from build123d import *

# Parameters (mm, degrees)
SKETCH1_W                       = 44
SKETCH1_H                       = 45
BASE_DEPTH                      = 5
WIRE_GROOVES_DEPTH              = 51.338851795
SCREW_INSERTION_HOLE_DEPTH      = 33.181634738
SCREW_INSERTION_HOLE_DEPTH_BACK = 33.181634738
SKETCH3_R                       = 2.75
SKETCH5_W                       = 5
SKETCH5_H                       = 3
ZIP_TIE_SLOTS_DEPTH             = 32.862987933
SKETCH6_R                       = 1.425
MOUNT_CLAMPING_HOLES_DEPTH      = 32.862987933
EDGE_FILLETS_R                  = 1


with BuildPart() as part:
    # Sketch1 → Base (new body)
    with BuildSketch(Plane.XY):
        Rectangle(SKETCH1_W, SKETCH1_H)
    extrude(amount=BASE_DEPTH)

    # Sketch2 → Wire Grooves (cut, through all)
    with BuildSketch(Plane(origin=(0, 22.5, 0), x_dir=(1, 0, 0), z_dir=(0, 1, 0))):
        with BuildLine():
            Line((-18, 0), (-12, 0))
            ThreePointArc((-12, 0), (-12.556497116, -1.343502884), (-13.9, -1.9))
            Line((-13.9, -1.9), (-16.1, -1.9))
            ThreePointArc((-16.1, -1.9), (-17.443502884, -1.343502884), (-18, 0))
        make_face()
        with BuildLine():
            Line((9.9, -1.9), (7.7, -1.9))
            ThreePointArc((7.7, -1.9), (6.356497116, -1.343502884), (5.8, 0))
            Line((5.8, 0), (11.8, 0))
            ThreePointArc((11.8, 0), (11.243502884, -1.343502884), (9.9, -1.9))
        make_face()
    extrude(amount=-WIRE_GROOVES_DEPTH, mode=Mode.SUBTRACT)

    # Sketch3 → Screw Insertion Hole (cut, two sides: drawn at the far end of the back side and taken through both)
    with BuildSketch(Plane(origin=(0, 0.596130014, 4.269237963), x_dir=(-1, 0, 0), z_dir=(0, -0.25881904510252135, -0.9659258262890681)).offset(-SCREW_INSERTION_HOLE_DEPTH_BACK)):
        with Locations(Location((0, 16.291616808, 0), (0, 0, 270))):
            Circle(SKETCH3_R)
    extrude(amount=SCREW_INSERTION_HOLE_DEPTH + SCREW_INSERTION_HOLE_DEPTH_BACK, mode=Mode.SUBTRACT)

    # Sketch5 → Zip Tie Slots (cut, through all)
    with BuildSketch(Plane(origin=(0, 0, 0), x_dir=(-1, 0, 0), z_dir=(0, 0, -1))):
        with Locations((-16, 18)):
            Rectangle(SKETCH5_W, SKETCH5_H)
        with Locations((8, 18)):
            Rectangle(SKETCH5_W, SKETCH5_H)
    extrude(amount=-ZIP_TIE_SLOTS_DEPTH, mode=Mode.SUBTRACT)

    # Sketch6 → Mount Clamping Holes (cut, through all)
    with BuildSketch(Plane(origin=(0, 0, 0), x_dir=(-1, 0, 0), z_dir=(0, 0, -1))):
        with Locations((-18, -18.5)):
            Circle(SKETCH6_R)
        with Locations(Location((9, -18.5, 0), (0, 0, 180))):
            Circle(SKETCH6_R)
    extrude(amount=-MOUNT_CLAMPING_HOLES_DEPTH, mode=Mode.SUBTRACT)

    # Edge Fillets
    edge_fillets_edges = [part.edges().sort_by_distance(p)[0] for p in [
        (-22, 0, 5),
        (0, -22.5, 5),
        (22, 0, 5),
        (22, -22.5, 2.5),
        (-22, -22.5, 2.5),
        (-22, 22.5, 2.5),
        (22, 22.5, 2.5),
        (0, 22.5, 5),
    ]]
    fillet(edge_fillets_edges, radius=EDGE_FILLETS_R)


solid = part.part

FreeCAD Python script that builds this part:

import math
import FreeCAD as App
import Part
import Sketcher
Q = App.Units.Quantity


def edges_at(feature, points):
    """Names of the edges that pass closest to the given points."""
    edges = feature.Shape.Edges
    near = lambda p: min(range(len(edges)), key=lambda i: edges[i].distToShape(Part.Vertex(*p))[0])
    return sorted({f"Edge{near(p) + 1}" for p in points})

doc = App.newDocument("Part")
params = doc.addObject("Spreadsheet::Sheet", "Params")
for row, (alias, value) in enumerate([
    ("sketch1_width", "44 mm"),
    ("sketch1_height", "45 mm"),
    ("pad1_length", "5 mm"),
    ("sketch2_radius", "1.9 mm"),
    ("sketch2_width", "6 mm"),
    ("sketch3_diameter", "5.5 mm"),
    ("sketch4_width", "5 mm"),
    ("sketch4_height", "3 mm"),
    ("sketch5_diameter", "2.85 mm"),
    ("fillet_radius", "1 mm"),
], start=1):
    params.set(f"A{row}", alias)
    params.set(f"B{row}", "=" + value)
    params.setAlias(f"B{row}", alias)

body = doc.addObject("PartDesign::Body", "Body")

# Sketch on XY plane
sketch1 = body.newObject("Sketcher::SketchObject", "Sketch")
sketch1.AttachmentSupport = (doc.getObject("XY_Plane"), [""])
sketch1.MapMode = "FlatFace"
sketch1.addGeometry(Part.LineSegment(App.Vector(-22, 22.5, 0), App.Vector(-22, -22.5, 0)), False)
sketch1.addGeometry(Part.LineSegment(App.Vector(-22, -22.5, 0), App.Vector(22, -22.5, 0)), False)
sketch1.addGeometry(Part.LineSegment(App.Vector(22, -22.5, 0), App.Vector(22, 22.5, 0)), False)
sketch1.addGeometry(Part.LineSegment(App.Vector(22, 22.5, 0), App.Vector(-22, 22.5, 0)), False)
sketch1.addConstraint(Sketcher.Constraint("Coincident", 0, 2, 1, 1))
sketch1.addConstraint(Sketcher.Constraint("Coincident", 1, 2, 2, 1))
sketch1.addConstraint(Sketcher.Constraint("Coincident", 2, 2, 3, 1))
sketch1.addConstraint(Sketcher.Constraint("Coincident", 3, 2, 0, 1))
sketch1.addConstraint(Sketcher.Constraint("Vertical", 0))
sketch1.addConstraint(Sketcher.Constraint("Horizontal", 1))
sketch1.addConstraint(Sketcher.Constraint("Vertical", 2))
sketch1.addConstraint(Sketcher.Constraint("Horizontal", 3))
sketch1.addConstraint(Sketcher.Constraint("Symmetric", 0, 2, 2, 2, -1, 1))
sketch1.addConstraint(Sketcher.Constraint("DistanceX", 1, 1, 1, 2, Q("44 mm")))
sketch1.addConstraint(Sketcher.Constraint("DistanceY", 0, 2, 0, 1, Q("45 mm")))
sketch1.setExpression("Constraints[9]", "Params.sketch1_width")
sketch1.setExpression("Constraints[10]", "Params.sketch1_height")
pad1 = body.newObject("PartDesign::Pad", "Pad")
pad1.Profile = sketch1
pad1.setExpression("Length", "Params.pad1_length")

# Sketch on XZ plane
sketch2 = body.newObject("Sketcher::SketchObject", "Sketch001")
sketch2.AttachmentSupport = (doc.getObject("XZ_Plane"), [""])
sketch2.MapMode = "FlatFace"
sketch2.AttachmentOffset = App.Placement(App.Vector(0, 0, -22.5), App.Rotation())
sketch2.addGeometry(Part.LineSegment(App.Vector(-12, 0, 0), App.Vector(-18, 0, 0)), False)
sketch2.addGeometry(Part.ArcOfCircle(Part.Circle(App.Vector(-16.1, 0, 0), App.Vector(0, 0, 1), 1.9), math.radians(90), math.radians(180)), False)
sketch2.addGeometry(Part.LineSegment(App.Vector(-16.1, 1.9, 0), App.Vector(-13.9, 1.9, 0)), False)
sketch2.addGeometry(Part.ArcOfCircle(Part.Circle(App.Vector(-13.9, 0, 0), App.Vector(0, 0, 1), 1.9), math.radians(0), math.radians(90)), False)
sketch2.addGeometry(Part.LineSegment(App.Vector(7.7, 1.9, 0), App.Vector(9.9, 1.9, 0)), False)
sketch2.addGeometry(Part.ArcOfCircle(Part.Circle(App.Vector(9.9, 0, 0), App.Vector(0, 0, 1), 1.9), math.radians(0), math.radians(90)), False)
sketch2.addGeometry(Part.LineSegment(App.Vector(11.8, 0, 0), App.Vector(5.8, 0, 0)), False)
sketch2.addGeometry(Part.ArcOfCircle(Part.Circle(App.Vector(7.7, 0, 0), App.Vector(0, 0, 1), 1.9), math.radians(90), math.radians(180)), False)
sketch2.addConstraint(Sketcher.Constraint("Coincident", 0, 2, 1, 2))
sketch2.addConstraint(Sketcher.Constraint("Tangent", 1, 1, 2, 1))
sketch2.addConstraint(Sketcher.Constraint("Tangent", 2, 2, 3, 2))
sketch2.addConstraint(Sketcher.Constraint("Coincident", 3, 1, 0, 1))
sketch2.addConstraint(Sketcher.Constraint("Tangent", 4, 2, 5, 2))
sketch2.addConstraint(Sketcher.Constraint("Coincident", 5, 1, 6, 1))
sketch2.addConstraint(Sketcher.Constraint("Coincident", 6, 2, 7, 2))
sketch2.addConstraint(Sketcher.Constraint("Tangent", 7, 1, 4, 1))
sketch2.addConstraint(Sketcher.Constraint("Horizontal", 0))
sketch2.addConstraint(Sketcher.Constraint("Horizontal", 2))
sketch2.addConstraint(Sketcher.Constraint("Horizontal", 4))
sketch2.addConstraint(Sketcher.Constraint("Horizontal", 6))
sketch2.addConstraint(Sketcher.Constraint("Equal", 1, 3))
sketch2.addConstraint(Sketcher.Constraint("Equal", 3, 5))
sketch2.addConstraint(Sketcher.Constraint("Equal", 5, 7))
sketch2.addConstraint(Sketcher.Constraint("PointOnObject", 1, 3, -1))
sketch2.addConstraint(Sketcher.Constraint("PointOnObject", 5, 3, -1))
sketch2.addConstraint(Sketcher.Constraint("PointOnObject", 0, 2, -1))
sketch2.addConstraint(Sketcher.Constraint("PointOnObject", 5, 1, -1))
sketch2.addConstraint(Sketcher.Constraint("Equal", 2, 4))
sketch2.addConstraint(Sketcher.Constraint("Radius", 1, Q("1.9 mm")))
sketch2.addConstraint(Sketcher.Constraint("DistanceX", 0, 2, 0, 1, Q("6 mm")))
sketch2.addConstraint(Sketcher.Constraint("DistanceX", 0, 2, -1, 1, Q("18 mm")))
sketch2.addConstraint(Sketcher.Constraint("DistanceX", 1, 3, 5, 3, Q("26 mm")))
sketch2.setExpression("Constraints[20]", "Params.sketch2_radius")
sketch2.setExpression("Constraints[21]", "Params.sketch2_width")
pocket1 = body.newObject("PartDesign::Pocket", "Pocket")
pocket1.Profile = sketch2
pocket1.Type = "ThroughAll"
pocket1.Reversed = True

# Sketch on an angled plane
sketch3 = body.newObject("Sketcher::SketchObject", "Sketch002")
sketch3.Placement = App.Placement(App.Vector(0, 0.59613, 4.269238), App.Rotation(App.Vector(-1, 0, 0), App.Vector(0, 0.965925826, -0.258819045), App.Vector(0, -0.258819045, -0.965925826), "ZXY"))
sketch3.addGeometry(Part.Circle(App.Vector(0, 16.291617, 0), App.Vector(0, 0, 1), 2.75), False)
sketch3.addConstraint(Sketcher.Constraint("PointOnObject", 0, 3, -2))
sketch3.addConstraint(Sketcher.Constraint("Diameter", 0, Q("5.5 mm")))
sketch3.addConstraint(Sketcher.Constraint("DistanceY", -1, 1, 0, 3, Q("16.291617 mm")))
sketch3.setExpression("Constraints[1]", "Params.sketch3_diameter")
pocket2 = body.newObject("PartDesign::Pocket", "Pocket001")
pocket2.Profile = sketch3
pocket2.Type = "ThroughAll"
pocket2.Midplane = True

# Sketch on XY plane
sketch4 = body.newObject("Sketcher::SketchObject", "Sketch003")
sketch4.AttachmentSupport = (doc.getObject("XY_Plane"), [""])
sketch4.MapMode = "FlatFace"
sketch4.addGeometry(Part.LineSegment(App.Vector(18.5, 19.5, 0), App.Vector(18.5, 16.5, 0)), False)
sketch4.addGeometry(Part.LineSegment(App.Vector(18.5, 16.5, 0), App.Vector(13.5, 16.5, 0)), False)
sketch4.addGeometry(Part.LineSegment(App.Vector(13.5, 16.5, 0), App.Vector(13.5, 19.5, 0)), False)
sketch4.addGeometry(Part.LineSegment(App.Vector(13.5, 19.5, 0), App.Vector(18.5, 19.5, 0)), False)
sketch4.addGeometry(Part.LineSegment(App.Vector(-5.5, 19.5, 0), App.Vector(-5.5, 16.5, 0)), False)
sketch4.addGeometry(Part.LineSegment(App.Vector(-5.5, 16.5, 0), App.Vector(-10.5, 16.5, 0)), False)
sketch4.addGeometry(Part.LineSegment(App.Vector(-10.5, 16.5, 0), App.Vector(-10.5, 19.5, 0)), False)
sketch4.addGeometry(Part.LineSegment(App.Vector(-10.5, 19.5, 0), App.Vector(-5.5, 19.5, 0)), False)
sketch4.addConstraint(Sketcher.Constraint("Coincident", 0, 2, 1, 1))
sketch4.addConstraint(Sketcher.Constraint("Coincident", 1, 2, 2, 1))
sketch4.addConstraint(Sketcher.Constraint("Coincident", 2, 2, 3, 1))
sketch4.addConstraint(Sketcher.Constraint("Coincident", 3, 2, 0, 1))
sketch4.addConstraint(Sketcher.Constraint("Coincident", 4, 2, 5, 1))
sketch4.addConstraint(Sketcher.Constraint("Coincident", 5, 2, 6, 1))
sketch4.addConstraint(Sketcher.Constraint("Coincident", 6, 2, 7, 1))
sketch4.addConstraint(Sketcher.Constraint("Coincident", 7, 2, 4, 1))
sketch4.addConstraint(Sketcher.Constraint("Vertical", 0))
sketch4.addConstraint(Sketcher.Constraint("Horizontal", 1))
sketch4.addConstraint(Sketcher.Constraint("Vertical", 2))
sketch4.addConstraint(Sketcher.Constraint("Horizontal", 3))
sketch4.addConstraint(Sketcher.Constraint("Vertical", 4))
sketch4.addConstraint(Sketcher.Constraint("Horizontal", 5))
sketch4.addConstraint(Sketcher.Constraint("Vertical", 6))
sketch4.addConstraint(Sketcher.Constraint("Horizontal", 7))
sketch4.addConstraint(Sketcher.Constraint("Horizontal", 1, 2, 4, 2))
sketch4.addConstraint(Sketcher.Constraint("Horizontal", 3, 2, 6, 2))
sketch4.addConstraint(Sketcher.Constraint("Equal", 3, 5))
sketch4.addConstraint(Sketcher.Constraint("DistanceX", 1, 2, 1, 1, Q("5 mm")))
sketch4.addConstraint(Sketcher.Constraint("DistanceY", 0, 2, 0, 1, Q("3 mm")))
sketch4.addConstraint(Sketcher.Constraint("DistanceX", 4, 2, 1, 2, Q("19 mm")))
sketch4.addConstraint(Sketcher.Constraint("DistanceX", -1, 1, 0, 2, Q("18.5 mm")))
sketch4.addConstraint(Sketcher.Constraint("DistanceY", -1, 1, 0, 2, Q("16.5 mm")))
sketch4.setExpression("Constraints[19]", "Params.sketch4_width")
sketch4.setExpression("Constraints[20]", "Params.sketch4_height")
pocket3 = body.newObject("PartDesign::Pocket", "Pocket002")
pocket3.Profile = sketch4
pocket3.Type = "ThroughAll"
pocket3.Reversed = True

# Sketch on XY plane
sketch5 = body.newObject("Sketcher::SketchObject", "Sketch004")
sketch5.AttachmentSupport = (doc.getObject("XY_Plane"), [""])
sketch5.MapMode = "FlatFace"
sketch5.addGeometry(Part.Circle(App.Vector(18, -18.5, 0), App.Vector(0, 0, 1), 1.425), False)
sketch5.addGeometry(Part.Circle(App.Vector(-9, -18.5, 0), App.Vector(0, 0, 1), 1.425), False)
sketch5.addConstraint(Sketcher.Constraint("Equal", 0, 1))
sketch5.addConstraint(Sketcher.Constraint("Horizontal", 0, 3, 1, 3))
sketch5.addConstraint(Sketcher.Constraint("Diameter", 0, Q("2.85 mm")))
sketch5.addConstraint(Sketcher.Constraint("DistanceX", -1, 1, 0, 3, Q("18 mm")))
sketch5.addConstraint(Sketcher.Constraint("DistanceX", 1, 3, -1, 1, Q("9 mm")))
sketch5.addConstraint(Sketcher.Constraint("DistanceY", 0, 3, -1, 1, Q("18.5 mm")))
sketch5.setExpression("Constraints[2]", "Params.sketch5_diameter")
pocket4 = body.newObject("PartDesign::Pocket", "Pocket003")
pocket4.Profile = sketch5
pocket4.Type = "ThroughAll"
pocket4.Reversed = True
doc.recompute()

fillet = body.newObject("PartDesign::Fillet", "Fillet")
fillet.Base = (pocket4, edges_at(pocket4, [
    (-22, 0, 5),
    (0, -22.5, 5),
    (22, 0, 5),
    (22, -22.5, 2.5),
    (-22, -22.5, 2.5),
    (-22, 22.5, 2.5),
    (22, 22.5, 2.5),
    (0, 22.5, 5),
]))
fillet.setExpression("Radius", "Params.fillet_radius")

doc.recompute()
